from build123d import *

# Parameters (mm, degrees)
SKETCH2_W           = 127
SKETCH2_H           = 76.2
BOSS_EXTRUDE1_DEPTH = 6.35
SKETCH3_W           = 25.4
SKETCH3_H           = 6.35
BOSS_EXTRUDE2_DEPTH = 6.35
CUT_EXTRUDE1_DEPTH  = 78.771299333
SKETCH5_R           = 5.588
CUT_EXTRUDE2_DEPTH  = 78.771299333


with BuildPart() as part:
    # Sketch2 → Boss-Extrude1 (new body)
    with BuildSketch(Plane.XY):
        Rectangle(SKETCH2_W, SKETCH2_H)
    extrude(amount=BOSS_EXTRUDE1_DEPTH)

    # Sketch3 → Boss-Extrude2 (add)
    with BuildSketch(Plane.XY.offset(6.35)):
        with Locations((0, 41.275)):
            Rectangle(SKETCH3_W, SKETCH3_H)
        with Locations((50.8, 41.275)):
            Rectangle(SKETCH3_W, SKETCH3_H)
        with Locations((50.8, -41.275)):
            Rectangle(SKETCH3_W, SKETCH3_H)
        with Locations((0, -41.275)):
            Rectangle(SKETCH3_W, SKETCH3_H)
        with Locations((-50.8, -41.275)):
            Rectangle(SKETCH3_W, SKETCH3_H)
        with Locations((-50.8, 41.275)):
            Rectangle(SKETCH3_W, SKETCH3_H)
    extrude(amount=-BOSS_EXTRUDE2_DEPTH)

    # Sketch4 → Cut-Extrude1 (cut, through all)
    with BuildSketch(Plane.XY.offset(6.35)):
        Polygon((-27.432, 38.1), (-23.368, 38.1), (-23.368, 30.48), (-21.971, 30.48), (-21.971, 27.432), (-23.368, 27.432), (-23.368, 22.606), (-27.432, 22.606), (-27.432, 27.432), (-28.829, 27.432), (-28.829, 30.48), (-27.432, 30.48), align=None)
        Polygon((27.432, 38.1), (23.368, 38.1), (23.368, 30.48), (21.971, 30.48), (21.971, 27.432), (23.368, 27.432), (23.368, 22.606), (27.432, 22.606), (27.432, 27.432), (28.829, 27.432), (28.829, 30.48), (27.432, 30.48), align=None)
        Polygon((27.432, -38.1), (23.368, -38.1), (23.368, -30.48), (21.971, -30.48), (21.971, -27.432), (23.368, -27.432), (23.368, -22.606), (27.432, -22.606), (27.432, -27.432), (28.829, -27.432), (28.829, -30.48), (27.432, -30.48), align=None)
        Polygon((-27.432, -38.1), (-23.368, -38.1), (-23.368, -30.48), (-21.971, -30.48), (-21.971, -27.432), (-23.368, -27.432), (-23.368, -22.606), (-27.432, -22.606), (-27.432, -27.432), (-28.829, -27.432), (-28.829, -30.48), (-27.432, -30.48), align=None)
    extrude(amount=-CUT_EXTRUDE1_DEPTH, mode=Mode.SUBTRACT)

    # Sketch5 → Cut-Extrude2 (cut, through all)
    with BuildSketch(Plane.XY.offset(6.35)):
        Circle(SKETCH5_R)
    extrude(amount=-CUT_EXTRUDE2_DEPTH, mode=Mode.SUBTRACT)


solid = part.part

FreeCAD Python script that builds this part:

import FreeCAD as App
import Part
import Sketcher
from FreeCAD import Vector
Q = App.Units.Quantity

doc = App.newDocument("Part")
body = doc.addObject("PartDesign::Body", "Body")

# Sketch on XY plane
sketch1 = doc.addObject("Sketcher::SketchObject", "Sketch")
body.addObject(sketch1)
sketch1.AttachmentSupport = (doc.XY_Plane, [""])
sketch1.MapMode = "FlatFace"
sketch1.addGeometry(Part.LineSegment(Vector(-64, 38, 0), Vector(-64, -38, 0)), False)
sketch1.addGeometry(Part.LineSegment(Vector(-64, -38, 0), Vector(64, -38, 0)), False)
sketch1.addGeometry(Part.LineSegment(Vector(64, -38, 0), Vector(64, 38, 0)), False)
sketch1.addGeometry(Part.LineSegment(Vector(64, 38, 0), Vector(-64, 38, 0)), False)
sketch1.addConstraint(Sketcher.Constraint("Coincident", 0, 2, 1, 1))
sketch1.addConstraint(Sketcher.Constraint("Coincident", 1, 2, 2, 1))
sketch1.addConstraint(Sketcher.Constraint("Coincident", 2, 2, 3, 1))
sketch1.addConstraint(Sketcher.Constraint("Coincident", 3, 2, 0, 1))
sketch1.addConstraint(Sketcher.Constraint("Vertical", 0))
sketch1.addConstraint(Sketcher.Constraint("Horizontal", 1))
sketch1.addConstraint(Sketcher.Constraint("Vertical", 2))
sketch1.addConstraint(Sketcher.Constraint("Horizontal", 3))
sketch1.addConstraint(Sketcher.Constraint("Symmetric", 0, 2, 2, 2, -1, 1))
sketch1.addConstraint(Sketcher.Constraint("DistanceX", 1, 1, 1, 2, Q("5 in")))
sketch1.addConstraint(Sketcher.Constraint("DistanceY", 0, 2, 0, 1, Q("3 in")))
pad1 = doc.addObject("PartDesign::Pad", "Pad")
body.addObject(pad1)
pad1.Profile = sketch1
pad1.Length = Q("0.25 in")

# Sketch on XY plane
sketch2 = doc.addObject("Sketcher::SketchObject", "Sketch001")
body.addObject(sketch2)
sketch2.AttachmentSupport = (doc.XY_Plane, [""])
sketch2.MapMode = "FlatFace"
sketch2.AttachmentOffset = App.Placement(Vector(0, 0, 0.25 * 25.4), App.Rotation())
sketch2.addGeometry(Part.LineSegment(Vector(-13, 44, 0), Vector(-13, 38, 0)), False)
sketch2.addGeometry(Part.LineSegment(Vector(-13, 38, 0), Vector(13, 38, 0)), False)
sketch2.addGeometry(Part.LineSegment(Vector(13, 38, 0), Vector(13, 44, 0)), False)
sketch2.addGeometry(Part.LineSegment(Vector(13, 44, 0), Vector(-13, 44, 0)), False)
sketch2.addGeometry(Part.LineSegment(Vector(38, 44, 0), Vector(38, 38, 0)), False)
sketch2.addGeometry(Part.LineSegment(Vector(38, 38, 0), Vector(64, 38, 0)), False)
sketch2.addGeometry(Part.LineSegment(Vector(64, 38, 0), Vector(64, 44, 0)), False)
sketch2.addGeometry(Part.LineSegment(Vector(64, 44, 0), Vector(38, 44, 0)), False)
sketch2.addGeometry(Part.LineSegment(Vector(38, -38, 0), Vector(38, -44, 0)), False)
sketch2.addGeometry(Part.LineSegment(Vector(38, -44, 0), Vector(64, -44, 0)), False)
sketch2.addGeometry(Part.LineSegment(Vector(64, -44, 0), Vector(64, -38, 0)), False)
sketch2.addGeometry(Part.LineSegment(Vector(64, -38, 0), Vector(38, -38, 0)), False)
sketch2.addGeometry(Part.LineSegment(Vector(-13, -38, 0), Vector(-13, -44, 0)), False)
sketch2.addGeometry(Part.LineSegment(Vector(-13, -44, 0), Vector(13, -44, 0)), False)
sketch2.addGeometry(Part.LineSegment(Vector(13, -44, 0), Vector(13, -38, 0)), False)
sketch2.addGeometry(Part.LineSegment(Vector(13, -38, 0), Vector(-13, -38, 0)), False)
sketch2.addGeometry(Part.LineSegment(Vector(-64, -38, 0), Vector(-64, -44, 0)), False)
sketch2.addGeometry(Part.LineSegment(Vector(-64, -44, 0), Vector(-38, -44, 0)), False)
sketch2.addGeometry(Part.LineSegment(Vector(-38, -44, 0), Vector(-38, -38, 0)), False)
sketch2.addGeometry(Part.LineSegment(Vector(-38, -38, 0), Vector(-64, -38, 0)), False)
sketch2.addGeometry(Part.LineSegment(Vector(-64, 44, 0), Vector(-64, 38, 0)), False)
sketch2.addGeometry(Part.LineSegment(Vector(-64, 38, 0), Vector(-38, 38, 0)), False)
sketch2.addGeometry(Part.LineSegment(Vector(-38, 38, 0), Vector(-38, 44, 0)), False)
sketch2.addGeometry(Part.LineSegment(Vector(-38, 44, 0), Vector(-64, 44, 0)), False)
sketch2.addConstraint(Sketcher.Constraint("Coincident", 0, 2, 1, 1))
sketch2.addConstraint(Sketcher.Constraint("Coincident", 1, 2, 2, 1))
sketch2.addConstraint(Sketcher.Constraint("Coincident", 2, 2, 3, 1))
sketch2.addConstraint(Sketcher.Constraint("Coincident", 3, 2, 0, 1))
sketch2.addConstraint(Sketcher.Constraint("Coincident", 4, 2, 5, 1))
sketch2.addConstraint(Sketcher.Constraint("Coincident", 5, 2, 6, 1))
sketch2.addConstraint(Sketcher.Constraint("Coincident", 6, 2, 7, 1))
sketch2.addConstraint(Sketcher.Constraint("Coincident", 7, 2, 4, 1))
sketch2.addConstraint(Sketcher.Constraint("Coincident", 8, 2, 9, 1))
sketch2.addConstraint(Sketcher.Constraint("Coincident", 9, 2, 10, 1))
sketch2.addConstraint(Sketcher.Constraint("Coincident", 10, 2, 11, 1))
sketch2.addConstraint(Sketcher.Constraint("Coincident", 11, 2, 8, 1))
sketch2.addConstraint(Sketcher.Constraint("Coincident", 12, 2, 13, 1))
sketch2.addConstraint(Sketcher.Constraint("Coincident", 13, 2, 14, 1))
sketch2.addConstraint(Sketcher.Constraint("Coincident", 14, 2, 15, 1))
sketch2.addConstraint(Sketcher.Constraint("Coincident", 15, 2, 12, 1))
sketch2.addConstraint(Sketcher.Constraint("Coincident", 16, 2, 17, 1))
sketch2.addConstraint(Sketcher.Constraint("Coincident", 17, 2, 18, 1))
sketch2.addConstraint(Sketcher.Constraint("Coincident", 18, 2, 19, 1))
sketch2.addConstraint(Sketcher.Constraint("Coincident", 19, 2, 16, 1))
sketch2.addConstraint(Sketcher.Constraint("Coincident", 20, 2, 21, 1))
sketch2.addConstraint(Sketcher.Constraint("Coincident", 21, 2, 22, 1))
sketch2.addConstraint(Sketcher.Constraint("Coincident", 22, 2, 23, 1))
sketch2.addConstraint(Sketcher.Constraint("Coincident", 23, 2, 20, 1))
sketch2.addConstraint(Sketcher.Constraint("Vertical", 0))
sketch2.addConstraint(Sketcher.Constraint("Horizontal", 1))
sketch2.addConstraint(Sketcher.Constraint("Vertical", 2))
sketch2.addConstraint(Sketcher.Constraint("Horizontal", 3))
sketch2.addConstraint(Sketcher.Constraint("Vertical", 4))
sketch2.addConstraint(Sketcher.Constraint("Horizontal", 5))
sketch2.addConstraint(Sketcher.Constraint("Vertical", 6))
sketch2.addConstraint(Sketcher.Constraint("Horizontal", 7))
sketch2.addConstraint(Sketcher.Constraint("Vertical", 8))
sketch2.addConstraint(Sketcher.Constraint("Horizontal", 9))
sketch2.addConstraint(Sketcher.Constraint("Vertical", 10))
sketch2.addConstraint(Sketcher.Constraint("Horizontal", 11))
sketch2.addConstraint(Sketcher.Constraint("Vertical", 12))
sketch2.addConstraint(Sketcher.Constraint("Horizontal", 13))
sketch2.addConstraint(Sketcher.Constraint("Vertical", 14))
sketch2.addConstraint(Sketcher.Constraint("Horizontal", 15))
sketch2.addConstraint(Sketcher.Constraint("Vertical", 16))
sketch2.addConstraint(Sketcher.Constraint("Horizontal", 17))
sketch2.addConstraint(Sketcher.Constraint("Vertical", 18))
sketch2.addConstraint(Sketcher.Constraint("Horizontal", 19))
sketch2.addConstraint(Sketcher.Constraint("Vertical", 20))
sketch2.addConstraint(Sketcher.Constraint("Horizontal", 21))
sketch2.addConstraint(Sketcher.Constraint("Vertical", 22))
sketch2.addConstraint(Sketcher.Constraint("Horizontal", 23))
sketch2.addConstraint(Sketcher.Constraint("Symmetric", 2, 2, 12, 2, -1, 1))
sketch2.addConstraint(Sketcher.Constraint("Symmetric", 0, 2, 14, 2, -1, 1))
sketch2.addConstraint(Sketcher.Constraint("Symmetric", 6, 2, 16, 2, -1, 1))
sketch2.addConstraint(Sketcher.Constraint("Symmetric", 4, 2, 18, 2, -1, 1))
sketch2.addConstraint(Sketcher.Constraint("Symmetric", 10, 2, 20, 2, -1, 1))
sketch2.addConstraint(Sketcher.Constraint("Symmetric", 8, 2, 22, 2, -1, 1))
sketch2.addConstraint(Sketcher.Constraint("Symmetric", 9, 2, 16, 2, -2))
sketch2.addConstraint(Sketcher.Constraint("Symmetric", 11, 2, 18, 2, -2))
sketch2.addConstraint(Sketcher.Constraint("Horizontal", 1, 2, 4, 2))
sketch2.addConstraint(Sketcher.Constraint("Horizontal", 3, 2, 6, 2))
sketch2.addConstraint(Sketcher.Constraint("Vertical", 3, 2, 12, 2))
sketch2.addConstraint(Sketcher.Constraint("Equal", 3, 5))
sketch2.addConstraint(Sketcher.Constraint("DistanceX", 1, 1, 1, 2, Q("1 in")))
sketch2.addConstraint(Sketcher.Constraint("DistanceX", 1, 2, 4, 2, Q("1 in")))
sketch2.addConstraint(Sketcher.Constraint("DistanceY", 10, 2, 5, 2, Q("3 in")))
sketch2.addConstraint(Sketcher.Constraint("DistanceY", 0, 2, 0, 1, Q("0.25 in")))
pad2 = doc.addObject("PartDesign::Pad", "Pad001")
body.addObject(pad2)
pad2.Profile = sketch2
pad2.Length = Q("0.25 in")
pad2.Reversed = True

# Sketch on XY plane
sketch3 = doc.addObject("Sketcher::SketchObject", "Sketch002")
body.addObject(sketch3)
sketch3.AttachmentSupport = (doc.XY_Plane, [""])
sketch3.MapMode = "FlatFace"
sketch3.AttachmentOffset = App.Placement(Vector(0, 0, 0.25 * 25.4), App.Rotation())
sketch3.addGeometry(Part.LineSegment(Vector(-23.4, 38.1, 0), Vector(-27.4, 38.1, 0)), False)
sketch3.addGeometry(Part.LineSegment(Vector(-27.4, 38.1, 0), Vector(-27.4, 30.5, 0)), False)
sketch3.addGeometry(Part.LineSegment(Vector(-27.4, 30.5, 0), Vector(-28.8, 30.5, 0)), False)
sketch3.addGeometry(Part.LineSegment(Vector(-28.8, 30.5, 0), Vector(-28.8, 27.4, 0)), False)
sketch3.addGeometry(Part.LineSegment(Vector(-28.8, 27.4, 0), Vector(-27.4, 27.4, 0)), False)
sketch3.addGeometry(Part.LineSegment(Vector(-27.4, 27.4, 0), Vector(-27.4, 22.6, 0)), False)
sketch3.addGeometry(Part.LineSegment(Vector(-27.4, 22.6, 0), Vector(-23.4, 22.6, 0)), False)
sketch3.addGeometry(Part.LineSegment(Vector(-23.4, 22.6, 0), Vector(-23.4, 27.4, 0)), False)
sketch3.addGeometry(Part.LineSegment(Vector(-23.4, 27.4, 0), Vector(-22, 27.4, 0)), False)
sketch3.addGeometry(Part.LineSegment(Vector(-22, 27.4, 0), Vector(-22, 30.5, 0)), False)
sketch3.addGeometry(Part.LineSegment(Vector(-22, 30.5, 0), Vector(-23.4, 30.5, 0)), False)
sketch3.addGeometry(Part.LineSegment(Vector(-23.4, 30.5, 0), Vector(-23.4, 38.1, 0)), False)
sketch3.addGeometry(Part.LineSegment(Vector(27.4, 38.1, 0), Vector(23.4, 38.1, 0)), False)
sketch3.addGeometry(Part.LineSegment(Vector(23.4, 38.1, 0), Vector(23.4, 30.5, 0)), False)
sketch3.addGeometry(Part.LineSegment(Vector(23.4, 30.5, 0), Vector(22, 30.5, 0)), False)
sketch3.addGeometry(Part.LineSegment(Vector(22, 30.5, 0), Vector(22, 27.4, 0)), False)
sketch3.addGeometry(Part.LineSegment(Vector(22, 27.4, 0), Vector(23.4, 27.4, 0)), False)
sketch3.addGeometry(Part.LineSegment(Vector(23.4, 27.4, 0), Vector(23.4, 22.6, 0)), False)
sketch3.addGeometry(Part.LineSegment(Vector(23.4, 22.6, 0), Vector(27.4, 22.6, 0)), False)
sketch3.addGeometry(Part.LineSegment(Vector(27.4, 22.6, 0), Vector(27.4, 27.4, 0)), False)
sketch3.addGeometry(Part.LineSegment(Vector(27.4, 27.4, 0), Vector(28.8, 27.4, 0)), False)
sketch3.addGeometry(Part.LineSegment(Vector(28.8, 27.4, 0), Vector(28.8, 30.5, 0)), False)
sketch3.addGeometry(Part.LineSegment(Vector(28.8, 30.5, 0), Vector(27.4, 30.5, 0)), False)
sketch3.addGeometry(Part.LineSegment(Vector(27.4, 30.5, 0), Vector(27.4, 38.1, 0)), False)
sketch3.addGeometry(Part.LineSegment(Vector(23.4, -38.1, 0), Vector(27.4, -38.1, 0)), False)
sketch3.addGeometry(Part.LineSegment(Vector(27.4, -38.1, 0), Vector(27.4, -30.5, 0)), False)
sketch3.addGeometry(Part.LineSegment(Vector(27.4, -30.5, 0), Vector(28.8, -30.5, 0)), False)
sketch3.addGeometry(Part.LineSegment(Vector(28.8, -30.5, 0), Vector(28.8, -27.4, 0)), False)
sketch3.addGeometry(Part.LineSegment(Vector(28.8, -27.4, 0), Vector(27.4, -27.4, 0)), False)
sketch3.addGeometry(Part.LineSegment(Vector(27.4, -27.4, 0), Vector(27.4, -22.6, 0)), False)
sketch3.addGeometry(Part.LineSegment(Vector(27.4, -22.6, 0), Vector(23.4, -22.6, 0)), False)
sketch3.addGeometry(Part.LineSegment(Vector(23.4, -22.6, 0), Vector(23.4, -27.4, 0)), False)
sketch3.addGeometry(Part.LineSegment(Vector(23.4, -27.4, 0), Vector(22, -27.4, 0)), False)
sketch3.addGeometry(Part.LineSegment(Vector(22, -27.4, 0), Vector(22, -30.5, 0)), False)
sketch3.addGeometry(Part.LineSegment(Vector(22, -30.5, 0), Vector(23.4, -30.5, 0)), False)
sketch3.addGeometry(Part.LineSegment(Vector(23.4, -30.5, 0), Vector(23.4, -38.1, 0)), False)
sketch3.addGeometry(Part.LineSegment(Vector(-27.4, -38.1, 0), Vector(-23.4, -38.1, 0)), False)
sketch3.addGeometry(Part.LineSegment(Vector(-23.4, -38.1, 0), Vector(-23.4, -30.5, 0)), False)
sketch3.addGeometry(Part.LineSegment(Vector(-23.4, -30.5, 0), Vector(-22, -30.5, 0)), False)
sketch3.addGeometry(Part.LineSegment(Vector(-22, -30.5, 0), Vector(-22, -27.4, 0)), False)
sketch3.addGeometry(Part.LineSegment(Vector(-22, -27.4, 0), Vector(-23.4, -27.4, 0)), False)
sketch3.addGeometry(Part.LineSegment(Vector(-23.4, -27.4, 0), Vector(-23.4, -22.6, 0)), False)
sketch3.addGeometry(Part.LineSegment(Vector(-23.4, -22.6, 0), Vector(-27.4, -22.6, 0)), False)
sketch3.addGeometry(Part.LineSegment(Vector(-27.4, -22.6, 0), Vector(-27.4, -27.4, 0)), False)
sketch3.addGeometry(Part.LineSegment(Vector(-27.4, -27.4, 0), Vector(-28.8, -27.4, 0)), False)
sketch3.addGeometry(Part.LineSegment(Vector(-28.8, -27.4, 0), Vector(-28.8, -30.5, 0)), False)
sketch3.addGeometry(Part.LineSegment(Vector(-28.8, -30.5, 0), Vector(-27.4, -30.5, 0)), False)
sketch3.addGeometry(Part.LineSegment(Vector(-27.4, -30.5, 0), Vector(-27.4, -38.1, 0)), False)
sketch3.addConstraint(Sketcher.Constraint("Coincident", 0, 2, 1, 1))
sketch3.addConstraint(Sketcher.Constraint("Coincident", 1, 2, 2, 1))
sketch3.addConstraint(Sketcher.Constraint("Coincident", 2, 2, 3, 1))
sketch3.addConstraint(Sketcher.Constraint("Coincident", 3, 2, 4, 1))
sketch3.addConstraint(Sketcher.Constraint("Coincident", 4, 2, 5, 1))
sketch3.addConstraint(Sketcher.Constraint("Coincident", 5, 2, 6, 1))
sketch3.addConstraint(Sketcher.Constraint("Coincident", 6, 2, 7, 1))
sketch3.addConstraint(Sketcher.Constraint("Coincident", 7, 2, 8, 1))
sketch3.addConstraint(Sketcher.Constraint("Coincident", 8, 2, 9, 1))
sketch3.addConstraint(Sketcher.Constraint("Coincident", 9, 2, 10, 1))
sketch3.addConstraint(Sketcher.Constraint("Coincident", 10, 2, 11, 1))
sketch3.addConstraint(Sketcher.Constraint("Coincident", 11, 2, 0, 1))
sketch3.addConstraint(Sketcher.Constraint("Coincident", 12, 2, 13, 1))
sketch3.addConstraint(Sketcher.Constraint("Coincident", 13, 2, 14, 1))
sketch3.addConstraint(Sketcher.Constraint("Coincident", 14, 2, 15, 1))
sketch3.addConstraint(Sketcher.Constraint("Coincident", 15, 2, 16, 1))
sketch3.addConstraint(Sketcher.Constraint("Coincident", 16, 2, 17, 1))
sketch3.addConstraint(Sketcher.Constraint("Coincident", 17, 2, 18, 1))
sketch3.addConstraint(Sketcher.Constraint("Coincident", 18, 2, 19, 1))
sketch3.addConstraint(Sketcher.Constraint("Coincident", 19, 2, 20, 1))
sketch3.addConstraint(Sketcher.Constraint("Coincident", 20, 2, 21, 1))
sketch3.addConstraint(Sketcher.Constraint("Coincident", 21, 2, 22, 1))
sketch3.addConstraint(Sketcher.Constraint("Coincident", 22, 2, 23, 1))
sketch3.addConstraint(Sketcher.Constraint("Coincident", 23, 2, 12, 1))
sketch3.addConstraint(Sketcher.Constraint("Coincident", 24, 2, 25, 1))
sketch3.addConstraint(Sketcher.Constraint("Coincident", 25, 2, 26, 1))
sketch3.addConstraint(Sketcher.Constraint("Coincident", 26, 2, 27, 1))
sketch3.addConstraint(Sketcher.Constraint("Coincident", 27, 2, 28, 1))
sketch3.addConstraint(Sketcher.Constraint("Coincident", 28, 2, 29, 1))
sketch3.addConstraint(Sketcher.Constraint("Coincident", 29, 2, 30, 1))
sketch3.addConstraint(Sketcher.Constraint("Coincident", 30, 2, 31, 1))
sketch3.addConstraint(Sketcher.Constraint("Coincident", 31, 2, 32, 1))
sketch3.addConstraint(Sketcher.Constraint("Coincident", 32, 2, 33, 1))
sketch3.addConstraint(Sketcher.Constraint("Coincident", 33, 2, 34, 1))
sketch3.addConstraint(Sketcher.Constraint("Coincident", 34, 2, 35, 1))
sketch3.addConstraint(Sketcher.Constraint("Coincident", 35, 2, 24, 1))
sketch3.addConstraint(Sketcher.Constraint("Coincident", 36, 2, 37, 1))
sketch3.addConstraint(Sketcher.Constraint("Coincident", 37, 2, 38, 1))
sketch3.addConstraint(Sketcher.Constraint("Coincident", 38, 2, 39, 1))
sketch3.addConstraint(Sketcher.Constraint("Coincident", 39, 2, 40, 1))
sketch3.addConstraint(Sketcher.Constraint("Coincident", 40, 2, 41, 1))
sketch3.addConstraint(Sketcher.Constraint("Coincident", 41, 2, 42, 1))
sketch3.addConstraint(Sketcher.Constraint("Coincident", 42, 2, 43, 1))
sketch3.addConstraint(Sketcher.Constraint("Coincident", 43, 2, 44, 1))
sketch3.addConstraint(Sketcher.Constraint("Coincident", 44, 2, 45, 1))
sketch3.addConstraint(Sketcher.Constraint("Coincident", 45, 2, 46, 1))
sketch3.addConstraint(Sketcher.Constraint("Coincident", 46, 2, 47, 1))
sketch3.addConstraint(Sketcher.Constraint("Coincident", 47, 2, 36, 1))
sketch3.addConstraint(Sketcher.Constraint("Horizontal", 0))
sketch3.addConstraint(Sketcher.Constraint("Vertical", 1))
sketch3.addConstraint(Sketcher.Constraint("Horizontal", 2))
sketch3.addConstraint(Sketcher.Constraint("Vertical", 3))
sketch3.addConstraint(Sketcher.Constraint("Horizontal", 4))
sketch3.addConstraint(Sketcher.Constraint("Vertical", 5))
sketch3.addConstraint(Sketcher.Constraint("Horizontal", 6))
sketch3.addConstraint(Sketcher.Constraint("Vertical", 7))
sketch3.addConstraint(Sketcher.Constraint("Horizontal", 8))
sketch3.addConstraint(Sketcher.Constraint("Vertical", 9))
sketch3.addConstraint(Sketcher.Constraint("Horizontal", 10))
sketch3.addConstraint(Sketcher.Constraint("Vertical", 11))
sketch3.addConstraint(Sketcher.Constraint("Horizontal", 12))
sketch3.addConstraint(Sketcher.Constraint("Vertical", 13))
sketch3.addConstraint(Sketcher.Constraint("Horizontal", 14))
sketch3.addConstraint(Sketcher.Constraint("Vertical", 15))
sketch3.addConstraint(Sketcher.Constraint("Horizontal", 16))
sketch3.addConstraint(Sketcher.Constraint("Vertical", 17))
sketch3.addConstraint(Sketcher.Constraint("Horizontal", 18))
sketch3.addConstraint(Sketcher.Constraint("Vertical", 19))
sketch3.addConstraint(Sketcher.Constraint("Horizontal", 20))
sketch3.addConstraint(Sketcher.Constraint("Vertical", 21))
sketch3.addConstraint(Sketcher.Constraint("Horizontal", 22))
sketch3.addConstraint(Sketcher.Constraint("Vertical", 23))
sketch3.addConstraint(Sketcher.Constraint("Horizontal", 24))
sketch3.addConstraint(Sketcher.Constraint("Vertical", 25))
sketch3.addConstraint(Sketcher.Constraint("Horizontal", 26))
sketch3.addConstraint(Sketcher.Constraint("Vertical", 27))
sketch3.addConstraint(Sketcher.Constraint("Horizontal", 28))
sketch3.addConstraint(Sketcher.Constraint("Vertical", 29))
sketch3.addConstraint(Sketcher.Constraint("Horizontal", 30))
sketch3.addConstraint(Sketcher.Constraint("Vertical", 31))
sketch3.addConstraint(Sketcher.Constraint("Horizontal", 32))
sketch3.addConstraint(Sketcher.Constraint("Vertical", 33))
sketch3.addConstraint(Sketcher.Constraint("Horizontal", 34))
sketch3.addConstraint(Sketcher.Constraint("Vertical", 35))
sketch3.addConstraint(Sketcher.Constraint("Horizontal", 36))
sketch3.addConstraint(Sketcher.Constraint("Vertical", 37))
sketch3.addConstraint(Sketcher.Constraint("Horizontal", 38))
sketch3.addConstraint(Sketcher.Constraint("Vertical", 39))
sketch3.addConstraint(Sketcher.Constraint("Horizontal", 40))
sketch3.addConstraint(Sketcher.Constraint("Vertical", 41))
sketch3.addConstraint(Sketcher.Constraint("Horizontal", 42))
sketch3.addConstraint(Sketcher.Constraint("Vertical", 43))
sketch3.addConstraint(Sketcher.Constraint("Horizontal", 44))
sketch3.addConstraint(Sketcher.Constraint("Vertical", 45))
sketch3.addConstraint(Sketcher.Constraint("Horizontal", 46))
sketch3.addConstraint(Sketcher.Constraint("Vertical", 47))
sketch3.addConstraint(Sketcher.Constraint("Symmetric", 0, 2, 24, 2, -1, 1))
sketch3.addConstraint(Sketcher.Constraint("Symmetric", 2, 2, 26, 2, -1, 1))
sketch3.addConstraint(Sketcher.Constraint("Symmetric", 4, 2, 28, 2, -1, 1))
sketch3.addConstraint(Sketcher.Constraint("Symmetric", 6, 2, 30, 2, -1, 1))
sketch3.addConstraint(Sketcher.Constraint("Symmetric", 8, 2, 32, 2, -1, 1))
sketch3.addConstraint(Sketcher.Constraint("Symmetric", 10, 2, 34, 2, -1, 1))
sketch3.addConstraint(Sketcher.Constraint("Symmetric", 12, 2, 36, 2, -1, 1))
sketch3.addConstraint(Sketcher.Constraint("Symmetric", 14, 2, 38, 2, -1, 1))
sketch3.addConstraint(Sketcher.Constraint("Symmetric", 16, 2, 40, 2, -1, 1))
sketch3.addConstraint(Sketcher.Constraint("Symmetric", 18, 2, 42, 2, -1, 1))
sketch3.addConstraint(Sketcher.Constraint("Symmetric", 20, 2, 44, 2, -1, 1))
sketch3.addConstraint(Sketcher.Constraint("Symmetric", 22, 2, 46, 2, -1, 1))
sketch3.addConstraint(Sketcher.Constraint("Symmetric", 11, 2, 12, 2, -2))
sketch3.addConstraint(Sketcher.Constraint("Symmetric", 9, 2, 14, 2, -2))
sketch3.addConstraint(Sketcher.Constraint("Symmetric", 7, 2, 16, 2, -2))
sketch3.addConstraint(Sketcher.Constraint("Symmetric", 5, 2, 18, 2, -2))
sketch3.addConstraint(Sketcher.Constraint("Symmetric", 3, 2, 20, 2, -2))
sketch3.addConstraint(Sketcher.Constraint("Symmetric", 1, 2, 22, 2, -2))
sketch3.addConstraint(Sketcher.Constraint("Horizontal", 4, 2, 7, 2))
sketch3.addConstraint(Sketcher.Constraint("Horizontal", 2, 2, 9, 2))
sketch3.addConstraint(Sketcher.Constraint("Vertical", 1, 2, 4, 2))
sketch3.addConstraint(Sketcher.Constraint("Vertical", 7, 2, 10, 2))
sketch3.addConstraint(Sketcher.Constraint("Equal", 4, 8))
sketch3.addConstraint(Sketcher.Constraint("DistanceY", 1, 2, 1, 1, Q("0.3 in")))
sketch3.addConstraint(Sketcher.Constraint("DistanceX", 0, 2, 0, 1, Q("0.16 in")))
sketch3.addConstraint(Sketcher.Constraint("DistanceY", 3, 2, 3, 1, Q("0.12 in")))
sketch3.addConstraint(Sketcher.Constraint("DistanceY", 5, 2, 5, 1, Q("0.19 in")))
sketch3.addConstraint(Sketcher.Constraint("DistanceY", -1, 1, 0, 2, Q("1.5 in")))
sketch3.addConstraint(Sketcher.Constraint("DistanceX", 2, 2, 2, 1, Q("0.055 in")))
sketch3.addConstraint(Sketcher.Constraint("DistanceX", 0, 2, -1, 1, Q("1.08 in")))
pocket1 = doc.addObject("PartDesign::Pocket", "Pocket")
body.addObject(pocket1)
pocket1.Profile = sketch3
pocket1.Type = "ThroughAll"

# Sketch on XY plane
sketch4 = doc.addObject("Sketcher::SketchObject", "Sketch003")
body.addObject(sketch4)
sketch4.AttachmentSupport = (doc.XY_Plane, [""])
sketch4.MapMode = "FlatFace"
sketch4.AttachmentOffset = App.Placement(Vector(0, 0, 0.25 * 25.4), App.Rotation())
sketch4.addGeometry(Part.Circle(Vector(0, 0, 0), Vector(0, 0, 1), 6), False)
sketch4.addConstraint(Sketcher.Constraint("Coincident", 0, 3, -1, 1))
sketch4.addConstraint(Sketcher.Constraint("Diameter", 0, Q("0.44 in")))
pocket2 = doc.addObject("PartDesign::Pocket", "Pocket001")
body.addObject(pocket2)
pocket2.Profile = sketch4
pocket2.Type = "ThroughAll"

doc.recompute()
